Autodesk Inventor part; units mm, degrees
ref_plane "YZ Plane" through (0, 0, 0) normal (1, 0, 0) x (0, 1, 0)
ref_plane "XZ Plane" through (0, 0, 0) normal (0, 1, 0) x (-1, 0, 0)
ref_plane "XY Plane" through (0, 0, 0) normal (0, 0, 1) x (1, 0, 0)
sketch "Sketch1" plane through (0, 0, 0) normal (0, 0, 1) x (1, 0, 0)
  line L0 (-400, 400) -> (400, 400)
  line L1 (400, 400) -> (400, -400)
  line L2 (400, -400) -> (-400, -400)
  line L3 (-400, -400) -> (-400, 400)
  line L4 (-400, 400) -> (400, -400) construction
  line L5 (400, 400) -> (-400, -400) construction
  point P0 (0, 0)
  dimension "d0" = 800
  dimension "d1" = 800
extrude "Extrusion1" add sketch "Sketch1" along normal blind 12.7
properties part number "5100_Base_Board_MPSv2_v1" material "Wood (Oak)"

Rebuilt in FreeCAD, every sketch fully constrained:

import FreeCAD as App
import Part
import Sketcher
Q = App.Units.Quantity


def add_polygon(sketch, points):
    """Adds a closed chain of lines whose ends are joined by coincident constraints."""
    first, n = sketch.GeometryCount, len(points)
    for a, b in zip(points, points[1:] + points[:1]):
        sketch.addGeometry(Part.LineSegment(App.Vector(*a, 0), App.Vector(*b, 0)), False)
    for i in range(n):
        sketch.addConstraint(Sketcher.Constraint("Coincident", first + i, 2, first + (i + 1) % n, 1))

doc = App.newDocument("Part")
body = doc.addObject("PartDesign::Body", "Body")

# Sketch on XY plane
sketch1 = body.newObject("Sketcher::SketchObject", "Sketch")
sketch1.AttachmentSupport = (doc.getObject("XY_Plane"), [""])
sketch1.MapMode = "FlatFace"
add_polygon(sketch1, [(400, 400), (-400, 400), (-400, -400), (400, -400)])  # lines 0-3
sketch1.addConstraint([
    Sketcher.Constraint("Horizontal", 0),
    Sketcher.Constraint("Vertical", 1),
    Sketcher.Constraint("Horizontal", 2),
    Sketcher.Constraint("Vertical", 3),
    Sketcher.Constraint("Symmetric", 0, 2, 2, 2, -1, 1),
    Sketcher.Constraint("Equal", 2, 1),
    Sketcher.Constraint("DistanceX", 0, 2, 0, 1, Q("800 mm")),
])
pad1 = body.newObject("PartDesign::Pad", "Pad")
pad1.Profile = sketch1
pad1.Length = 12.7

doc.recompute()
